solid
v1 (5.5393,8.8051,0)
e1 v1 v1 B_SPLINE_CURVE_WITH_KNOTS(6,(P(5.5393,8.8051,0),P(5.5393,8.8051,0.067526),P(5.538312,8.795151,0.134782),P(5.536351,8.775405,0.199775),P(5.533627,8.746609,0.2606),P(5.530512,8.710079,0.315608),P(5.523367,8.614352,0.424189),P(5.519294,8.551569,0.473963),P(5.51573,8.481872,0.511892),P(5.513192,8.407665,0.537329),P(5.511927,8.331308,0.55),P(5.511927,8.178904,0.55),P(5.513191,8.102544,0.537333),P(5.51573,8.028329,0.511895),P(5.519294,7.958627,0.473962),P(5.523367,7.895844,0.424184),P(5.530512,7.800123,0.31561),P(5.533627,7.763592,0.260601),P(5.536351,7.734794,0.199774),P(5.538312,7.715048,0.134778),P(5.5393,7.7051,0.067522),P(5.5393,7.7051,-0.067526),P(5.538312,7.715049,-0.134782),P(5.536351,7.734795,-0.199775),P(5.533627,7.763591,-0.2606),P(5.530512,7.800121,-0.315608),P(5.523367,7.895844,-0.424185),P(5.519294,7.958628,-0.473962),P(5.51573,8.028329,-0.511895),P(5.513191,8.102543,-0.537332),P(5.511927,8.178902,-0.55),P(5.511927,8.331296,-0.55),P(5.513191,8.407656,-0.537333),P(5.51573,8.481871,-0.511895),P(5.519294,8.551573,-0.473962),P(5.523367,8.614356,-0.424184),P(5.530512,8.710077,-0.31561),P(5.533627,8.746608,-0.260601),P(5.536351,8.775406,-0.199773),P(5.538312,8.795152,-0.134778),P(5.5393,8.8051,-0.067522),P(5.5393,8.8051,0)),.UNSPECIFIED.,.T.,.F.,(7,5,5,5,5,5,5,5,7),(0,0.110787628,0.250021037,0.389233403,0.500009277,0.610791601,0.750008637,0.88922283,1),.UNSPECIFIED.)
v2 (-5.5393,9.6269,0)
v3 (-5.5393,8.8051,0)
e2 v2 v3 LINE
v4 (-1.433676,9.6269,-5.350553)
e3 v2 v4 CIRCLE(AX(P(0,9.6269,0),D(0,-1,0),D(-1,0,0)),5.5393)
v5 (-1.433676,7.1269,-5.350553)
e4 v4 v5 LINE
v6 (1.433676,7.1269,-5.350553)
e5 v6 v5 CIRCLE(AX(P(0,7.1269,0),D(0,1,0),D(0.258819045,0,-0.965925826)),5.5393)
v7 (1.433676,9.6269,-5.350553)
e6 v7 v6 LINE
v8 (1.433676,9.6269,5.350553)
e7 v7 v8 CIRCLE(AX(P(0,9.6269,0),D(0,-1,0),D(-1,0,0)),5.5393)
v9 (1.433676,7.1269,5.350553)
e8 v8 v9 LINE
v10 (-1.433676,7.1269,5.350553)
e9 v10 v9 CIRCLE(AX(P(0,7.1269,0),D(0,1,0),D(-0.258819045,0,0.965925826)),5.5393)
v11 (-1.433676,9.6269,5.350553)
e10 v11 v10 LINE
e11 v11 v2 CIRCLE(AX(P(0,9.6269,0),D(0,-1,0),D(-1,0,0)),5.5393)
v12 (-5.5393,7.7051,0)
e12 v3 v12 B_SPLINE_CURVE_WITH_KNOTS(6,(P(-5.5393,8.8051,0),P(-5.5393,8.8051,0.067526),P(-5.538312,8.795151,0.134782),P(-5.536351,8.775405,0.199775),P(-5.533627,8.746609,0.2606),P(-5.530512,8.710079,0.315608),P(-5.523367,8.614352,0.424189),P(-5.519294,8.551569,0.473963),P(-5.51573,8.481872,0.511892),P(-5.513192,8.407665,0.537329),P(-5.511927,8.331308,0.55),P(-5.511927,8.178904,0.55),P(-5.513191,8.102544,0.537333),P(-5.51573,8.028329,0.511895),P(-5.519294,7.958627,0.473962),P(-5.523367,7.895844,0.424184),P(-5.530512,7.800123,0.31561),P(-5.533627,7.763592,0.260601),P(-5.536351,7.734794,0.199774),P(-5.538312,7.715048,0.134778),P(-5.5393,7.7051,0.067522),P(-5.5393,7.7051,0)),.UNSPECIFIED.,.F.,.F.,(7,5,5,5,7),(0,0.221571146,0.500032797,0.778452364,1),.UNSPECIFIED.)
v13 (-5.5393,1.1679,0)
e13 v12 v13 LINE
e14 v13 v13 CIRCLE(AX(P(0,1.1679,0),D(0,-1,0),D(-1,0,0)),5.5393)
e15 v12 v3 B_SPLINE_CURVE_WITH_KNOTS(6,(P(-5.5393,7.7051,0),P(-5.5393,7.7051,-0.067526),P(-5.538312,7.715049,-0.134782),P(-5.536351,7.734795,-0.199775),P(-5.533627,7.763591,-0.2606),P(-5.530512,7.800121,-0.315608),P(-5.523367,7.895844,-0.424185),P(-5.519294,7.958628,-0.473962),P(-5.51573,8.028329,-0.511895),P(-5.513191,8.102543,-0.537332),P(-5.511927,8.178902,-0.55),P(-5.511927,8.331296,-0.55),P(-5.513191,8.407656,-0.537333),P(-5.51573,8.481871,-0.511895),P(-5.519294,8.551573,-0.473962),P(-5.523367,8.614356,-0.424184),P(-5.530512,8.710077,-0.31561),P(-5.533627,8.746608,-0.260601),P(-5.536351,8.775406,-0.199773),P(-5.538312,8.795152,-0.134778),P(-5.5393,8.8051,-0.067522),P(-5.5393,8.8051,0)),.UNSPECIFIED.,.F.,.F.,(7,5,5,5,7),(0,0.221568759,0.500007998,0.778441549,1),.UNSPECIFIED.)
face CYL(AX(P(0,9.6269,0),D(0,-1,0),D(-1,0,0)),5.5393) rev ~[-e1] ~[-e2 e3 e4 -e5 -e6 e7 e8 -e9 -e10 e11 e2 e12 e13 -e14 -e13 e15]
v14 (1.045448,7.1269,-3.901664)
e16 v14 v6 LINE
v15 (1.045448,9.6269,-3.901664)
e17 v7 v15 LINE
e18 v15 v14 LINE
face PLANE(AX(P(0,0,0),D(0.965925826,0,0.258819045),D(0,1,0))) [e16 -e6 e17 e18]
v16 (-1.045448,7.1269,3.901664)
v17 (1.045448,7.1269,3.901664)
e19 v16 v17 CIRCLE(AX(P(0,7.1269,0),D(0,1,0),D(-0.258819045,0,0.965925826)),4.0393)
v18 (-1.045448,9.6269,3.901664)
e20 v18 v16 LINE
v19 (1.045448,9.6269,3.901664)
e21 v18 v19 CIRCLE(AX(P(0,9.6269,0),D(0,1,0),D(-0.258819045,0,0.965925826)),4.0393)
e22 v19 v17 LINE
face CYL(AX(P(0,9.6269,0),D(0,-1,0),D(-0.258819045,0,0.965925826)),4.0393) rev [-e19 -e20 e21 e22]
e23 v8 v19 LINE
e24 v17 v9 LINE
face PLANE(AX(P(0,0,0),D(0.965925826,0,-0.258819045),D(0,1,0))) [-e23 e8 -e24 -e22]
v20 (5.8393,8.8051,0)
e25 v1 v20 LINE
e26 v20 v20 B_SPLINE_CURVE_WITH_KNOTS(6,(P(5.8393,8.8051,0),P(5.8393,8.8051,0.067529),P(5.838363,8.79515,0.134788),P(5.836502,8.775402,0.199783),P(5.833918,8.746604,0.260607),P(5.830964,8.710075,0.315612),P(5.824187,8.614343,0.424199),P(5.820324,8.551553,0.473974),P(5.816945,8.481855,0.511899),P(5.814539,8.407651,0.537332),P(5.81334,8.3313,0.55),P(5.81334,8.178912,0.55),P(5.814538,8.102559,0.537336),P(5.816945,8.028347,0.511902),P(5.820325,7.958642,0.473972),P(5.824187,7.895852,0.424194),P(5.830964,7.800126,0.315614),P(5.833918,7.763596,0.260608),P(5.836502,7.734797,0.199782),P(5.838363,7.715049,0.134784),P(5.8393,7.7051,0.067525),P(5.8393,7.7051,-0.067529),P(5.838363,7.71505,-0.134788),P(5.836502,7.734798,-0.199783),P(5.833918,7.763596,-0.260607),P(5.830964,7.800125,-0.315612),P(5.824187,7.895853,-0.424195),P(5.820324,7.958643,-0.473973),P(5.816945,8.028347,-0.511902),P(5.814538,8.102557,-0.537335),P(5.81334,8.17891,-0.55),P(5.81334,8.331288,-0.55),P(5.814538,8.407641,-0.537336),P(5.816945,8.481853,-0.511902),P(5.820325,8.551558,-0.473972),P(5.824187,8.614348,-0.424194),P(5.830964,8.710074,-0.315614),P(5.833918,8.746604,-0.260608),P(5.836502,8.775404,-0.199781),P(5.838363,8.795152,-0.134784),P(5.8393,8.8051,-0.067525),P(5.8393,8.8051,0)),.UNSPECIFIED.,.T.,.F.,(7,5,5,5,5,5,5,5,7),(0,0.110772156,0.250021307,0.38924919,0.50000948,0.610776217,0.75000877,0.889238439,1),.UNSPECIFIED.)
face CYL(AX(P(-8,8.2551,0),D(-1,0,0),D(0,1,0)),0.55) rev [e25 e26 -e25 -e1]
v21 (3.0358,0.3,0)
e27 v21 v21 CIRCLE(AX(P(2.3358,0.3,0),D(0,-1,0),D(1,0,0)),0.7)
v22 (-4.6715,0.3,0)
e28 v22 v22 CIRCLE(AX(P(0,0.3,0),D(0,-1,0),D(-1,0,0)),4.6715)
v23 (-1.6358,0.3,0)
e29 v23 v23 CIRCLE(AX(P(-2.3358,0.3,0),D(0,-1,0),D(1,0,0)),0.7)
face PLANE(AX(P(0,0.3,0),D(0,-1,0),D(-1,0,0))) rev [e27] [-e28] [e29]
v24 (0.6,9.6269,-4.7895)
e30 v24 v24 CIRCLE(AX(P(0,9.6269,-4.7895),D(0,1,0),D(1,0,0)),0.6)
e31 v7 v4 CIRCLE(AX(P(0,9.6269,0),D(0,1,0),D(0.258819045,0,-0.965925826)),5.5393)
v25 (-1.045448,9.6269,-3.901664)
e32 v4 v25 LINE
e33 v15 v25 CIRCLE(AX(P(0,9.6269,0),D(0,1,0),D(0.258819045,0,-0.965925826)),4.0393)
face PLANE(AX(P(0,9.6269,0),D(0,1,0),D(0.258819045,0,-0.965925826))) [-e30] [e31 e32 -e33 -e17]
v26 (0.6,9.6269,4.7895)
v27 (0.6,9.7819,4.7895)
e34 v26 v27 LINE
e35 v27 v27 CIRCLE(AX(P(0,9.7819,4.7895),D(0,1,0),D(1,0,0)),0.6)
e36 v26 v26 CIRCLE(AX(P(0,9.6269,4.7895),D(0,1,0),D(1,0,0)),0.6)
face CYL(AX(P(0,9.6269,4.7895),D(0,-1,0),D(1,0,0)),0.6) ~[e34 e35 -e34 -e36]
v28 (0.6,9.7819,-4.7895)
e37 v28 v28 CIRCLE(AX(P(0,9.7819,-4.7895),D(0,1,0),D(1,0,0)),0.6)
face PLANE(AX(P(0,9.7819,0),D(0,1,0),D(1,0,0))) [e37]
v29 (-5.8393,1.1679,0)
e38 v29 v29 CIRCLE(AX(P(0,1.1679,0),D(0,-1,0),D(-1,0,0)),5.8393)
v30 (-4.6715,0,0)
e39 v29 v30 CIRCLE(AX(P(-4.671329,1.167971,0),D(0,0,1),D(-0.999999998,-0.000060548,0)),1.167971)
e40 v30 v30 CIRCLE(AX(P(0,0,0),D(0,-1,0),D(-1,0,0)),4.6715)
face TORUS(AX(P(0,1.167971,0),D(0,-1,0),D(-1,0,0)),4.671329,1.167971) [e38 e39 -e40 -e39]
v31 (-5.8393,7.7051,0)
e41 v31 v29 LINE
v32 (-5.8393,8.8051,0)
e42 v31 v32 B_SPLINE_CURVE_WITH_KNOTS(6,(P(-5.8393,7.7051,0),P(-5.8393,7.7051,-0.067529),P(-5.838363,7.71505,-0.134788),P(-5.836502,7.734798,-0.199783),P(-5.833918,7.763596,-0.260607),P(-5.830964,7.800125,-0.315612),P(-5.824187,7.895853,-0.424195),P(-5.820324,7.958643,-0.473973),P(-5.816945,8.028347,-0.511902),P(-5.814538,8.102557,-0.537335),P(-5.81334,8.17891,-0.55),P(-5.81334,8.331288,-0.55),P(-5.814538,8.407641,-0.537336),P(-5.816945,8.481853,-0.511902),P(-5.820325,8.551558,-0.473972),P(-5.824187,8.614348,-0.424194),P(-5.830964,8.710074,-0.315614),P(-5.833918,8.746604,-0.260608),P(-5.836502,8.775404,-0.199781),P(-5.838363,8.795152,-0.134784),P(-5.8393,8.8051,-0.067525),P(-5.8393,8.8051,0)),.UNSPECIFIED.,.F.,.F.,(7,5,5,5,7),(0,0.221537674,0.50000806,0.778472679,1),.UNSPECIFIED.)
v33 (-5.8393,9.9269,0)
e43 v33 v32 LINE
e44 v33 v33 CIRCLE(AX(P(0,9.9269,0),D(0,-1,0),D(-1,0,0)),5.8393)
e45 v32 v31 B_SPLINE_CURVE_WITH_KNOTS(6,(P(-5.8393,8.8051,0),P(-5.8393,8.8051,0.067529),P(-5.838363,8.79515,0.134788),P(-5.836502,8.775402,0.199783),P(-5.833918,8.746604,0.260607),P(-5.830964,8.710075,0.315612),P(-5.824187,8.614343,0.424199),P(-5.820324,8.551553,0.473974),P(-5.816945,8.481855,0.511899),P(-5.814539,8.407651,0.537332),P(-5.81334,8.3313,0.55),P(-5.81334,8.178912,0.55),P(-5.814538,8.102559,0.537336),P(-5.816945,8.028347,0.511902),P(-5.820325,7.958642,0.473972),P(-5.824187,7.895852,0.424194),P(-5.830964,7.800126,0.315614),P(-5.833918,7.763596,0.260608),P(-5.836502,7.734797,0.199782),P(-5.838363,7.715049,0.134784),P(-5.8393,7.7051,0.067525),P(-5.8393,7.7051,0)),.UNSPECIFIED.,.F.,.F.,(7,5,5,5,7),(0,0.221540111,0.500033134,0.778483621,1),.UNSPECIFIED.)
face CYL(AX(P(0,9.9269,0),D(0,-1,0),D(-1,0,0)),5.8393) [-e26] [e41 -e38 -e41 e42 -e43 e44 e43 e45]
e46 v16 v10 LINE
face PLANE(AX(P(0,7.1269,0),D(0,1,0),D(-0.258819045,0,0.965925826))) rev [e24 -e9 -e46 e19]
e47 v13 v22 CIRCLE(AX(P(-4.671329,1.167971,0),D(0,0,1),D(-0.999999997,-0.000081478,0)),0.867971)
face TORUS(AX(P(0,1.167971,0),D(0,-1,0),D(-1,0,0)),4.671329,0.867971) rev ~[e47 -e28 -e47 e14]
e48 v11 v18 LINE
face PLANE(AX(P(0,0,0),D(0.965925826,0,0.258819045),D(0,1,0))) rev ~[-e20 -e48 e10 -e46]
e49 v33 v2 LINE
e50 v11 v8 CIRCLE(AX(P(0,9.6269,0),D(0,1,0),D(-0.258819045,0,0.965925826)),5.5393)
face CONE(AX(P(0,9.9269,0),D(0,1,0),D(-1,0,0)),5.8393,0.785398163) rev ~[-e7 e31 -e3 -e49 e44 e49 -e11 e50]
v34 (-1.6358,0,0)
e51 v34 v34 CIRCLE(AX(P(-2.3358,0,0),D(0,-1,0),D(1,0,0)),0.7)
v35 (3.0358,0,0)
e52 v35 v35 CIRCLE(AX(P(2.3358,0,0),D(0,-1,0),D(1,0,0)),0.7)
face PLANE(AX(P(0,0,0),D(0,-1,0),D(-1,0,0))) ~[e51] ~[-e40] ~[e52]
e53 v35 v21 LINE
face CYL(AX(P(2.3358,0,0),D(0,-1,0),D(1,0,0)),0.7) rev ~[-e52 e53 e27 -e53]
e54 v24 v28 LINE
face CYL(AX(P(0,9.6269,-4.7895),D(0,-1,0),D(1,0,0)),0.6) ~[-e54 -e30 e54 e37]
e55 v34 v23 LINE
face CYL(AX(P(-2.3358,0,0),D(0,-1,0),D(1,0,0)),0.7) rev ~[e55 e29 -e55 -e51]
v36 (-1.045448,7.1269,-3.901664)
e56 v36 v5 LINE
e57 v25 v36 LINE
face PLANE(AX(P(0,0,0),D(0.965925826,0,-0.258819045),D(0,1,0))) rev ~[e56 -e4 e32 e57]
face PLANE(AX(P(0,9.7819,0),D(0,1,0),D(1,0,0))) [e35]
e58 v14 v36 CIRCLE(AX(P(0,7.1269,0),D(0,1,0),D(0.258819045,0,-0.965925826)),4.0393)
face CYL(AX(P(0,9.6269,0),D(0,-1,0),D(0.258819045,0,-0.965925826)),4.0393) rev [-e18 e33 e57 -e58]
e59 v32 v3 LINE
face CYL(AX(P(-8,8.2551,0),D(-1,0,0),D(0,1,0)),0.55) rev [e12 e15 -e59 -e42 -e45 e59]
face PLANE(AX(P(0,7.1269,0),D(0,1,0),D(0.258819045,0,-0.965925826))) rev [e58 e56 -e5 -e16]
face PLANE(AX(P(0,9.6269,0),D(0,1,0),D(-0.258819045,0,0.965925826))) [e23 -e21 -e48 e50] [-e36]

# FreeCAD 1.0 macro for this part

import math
import FreeCAD as App
import Part
import Sketcher
from FreeCAD import Vector
Q = App.Units.Quantity


def add_polygon(sketch, points):
    """Adds a closed chain of lines whose ends are joined by coincident constraints."""
    first, n = sketch.GeometryCount, len(points)
    for a, b in zip(points, points[1:] + points[:1]):
        sketch.addGeometry(Part.LineSegment(App.Vector(*a, 0), App.Vector(*b, 0)), False)
    for i in range(n):
        sketch.addConstraint(Sketcher.Constraint("Coincident", first + i, 2, first + (i + 1) % n, 1))

doc = App.newDocument("Part")
body = doc.addObject("PartDesign::Body", "Body")

# Sketch on XY plane
sketch1 = body.newObject("Sketcher::SketchObject", "Sketch")
sketch1.AttachmentSupport = (doc.getObject("XY_Plane"), [""])
sketch1.MapMode = "FlatFace"
sketch1.addGeometry([
    Part.LineSegment(Vector(-4.67, 0, 0), Vector(0, 0, 0)),  # 0
    Part.LineSegment(Vector(0, 0, 0), Vector(0, 0.3, 0)),  # 1
    Part.LineSegment(Vector(0, 0.3, 0), Vector(-4.67, 0.3, 0)),  # 2
    Part.ArcOfCircle(Part.Circle(Vector(-4.67, 1.17, 0), Vector(0, 0, 1), 0.87), math.radians(180), math.radians(270)),  # 3
    Part.LineSegment(Vector(-5.54, 1.17, 0), Vector(-5.54, 9.63, 0)),  # 4
    Part.LineSegment(Vector(-5.54, 9.63, 0), Vector(-5.84, 9.93, 0)),  # 5
    Part.LineSegment(Vector(-5.84, 9.93, 0), Vector(-5.84, 1.17, 0)),  # 6
    Part.ArcOfCircle(Part.Circle(Vector(-4.67, 1.17, 0), Vector(0, 0, 1), 1.17), math.radians(180), math.radians(270)),  # 7
], False)
sketch1.addConstraint([
    Sketcher.Constraint("Coincident", 0, 2, 1, 1),
    Sketcher.Constraint("Coincident", 1, 2, 2, 1),
    Sketcher.Constraint("Tangent", 2, 2, 3, 2),
    Sketcher.Constraint("Tangent", 3, 1, 4, 1),
    Sketcher.Constraint("Coincident", 4, 2, 5, 1),
    Sketcher.Constraint("Coincident", 5, 2, 6, 1),
    Sketcher.Constraint("Tangent", 6, 2, 7, 1),
    Sketcher.Constraint("Tangent", 7, 2, 0, 1),
    Sketcher.Constraint("Horizontal", 0),
    Sketcher.Constraint("Vertical", 1),
    Sketcher.Constraint("Horizontal", 2),
    Sketcher.Constraint("Vertical", 4),
    Sketcher.Constraint("Vertical", 6),
    Sketcher.Constraint("Coincident", 0, 2, -1, 1),
    Sketcher.Constraint("Coincident", 7, 3, 3, 3),
    Sketcher.Constraint("Angle", 5, Q("135 deg")),
    Sketcher.Constraint("DistanceY", 1, 1, 1, 2, 0.3),
    Sketcher.Constraint("Radius", 3, 0.8678),
    Sketcher.Constraint("DistanceY", 4, 1, 4, 2, 8.459),
    Sketcher.Constraint("DistanceX", 0, 1, 0, 2, 4.6715),
])
revolution = body.newObject("PartDesign::Revolution", "Revolution")
revolution.Profile = sketch1
revolution.ReferenceAxis = (sketch1, ["V_Axis"])
revolution.Angle = 360

# Sketch on YZ plane
sketch2 = body.newObject("Sketcher::SketchObject", "Sketch001")
sketch2.AttachmentSupport = (doc.getObject("YZ_Plane"), [""])
sketch2.MapMode = "FlatFace"
add_polygon(sketch2, [(9.6, 4), (9.6, 5.5), (7.1, 5.5), (7.1, 4)])  # lines 0-3
add_polygon(sketch2, [(9.6, -5.5), (9.6, -4), (7.1, -4), (7.1, -5.5)])  # lines 4-7
sketch2.addConstraint([
    Sketcher.Constraint("Vertical", 0),
    Sketcher.Constraint("Horizontal", 1),
    Sketcher.Constraint("Vertical", 2),
    Sketcher.Constraint("Horizontal", 3),
    Sketcher.Constraint("Vertical", 4),
    Sketcher.Constraint("Horizontal", 5),
    Sketcher.Constraint("Vertical", 6),
    Sketcher.Constraint("Horizontal", 7),
    Sketcher.Constraint("Symmetric", 3, 2, 4, 2, -1),
    Sketcher.Constraint("Symmetric", 1, 2, 6, 2, -1),
    Sketcher.Constraint("DistanceX", 1, 2, 1, 1, 2.5),
    Sketcher.Constraint("DistanceY", 0, 1, 0, 2, 1.5),
    Sketcher.Constraint("DistanceX", -1, 1, 0, 2, 9.627),
    Sketcher.Constraint("DistanceY", -1, 1, 0, 2, 5.5393),
])
revolution2 = body.newObject("PartDesign::Revolution", "Revolution001")
revolution2.Profile = sketch2
revolution2.ReferenceAxis = (sketch2, ["H_Axis"])
revolution2.Angle = 30
revolution2.Midplane = True

# Sketch on XZ plane
sketch3 = body.newObject("Sketcher::SketchObject", "Sketch002")
sketch3.AttachmentSupport = (doc.getObject("XZ_Plane"), [""])
sketch3.MapMode = "FlatFace"
sketch3.AttachmentOffset = App.Placement(Vector(0, 0, -9.6269), App.Rotation())
sketch3.addGeometry([
    Part.Circle(Vector(0, -4.8, 0), Vector(0, 0, 1), 0.6),
    Part.Circle(Vector(0, 4.8, 0), Vector(0, 0, 1), 0.6),
], False)
sketch3.addConstraint([
    Sketcher.Constraint("Equal", 0, 1),
    Sketcher.Constraint("Symmetric", 0, 3, 1, 3, -1, 1),
    Sketcher.Constraint("PointOnObject", 0, 3, -2),
    Sketcher.Constraint("Diameter", 0, 1.2),
    Sketcher.Constraint("DistanceY", 0, 3, 1, 3, 9.579),
])
pad1 = body.newObject("PartDesign::Pad", "Pad")
pad1.Profile = sketch3
pad1.Length = 0.155
pad1.Reversed = True

# Sketch on YZ plane
sketch4 = body.newObject("Sketcher::SketchObject", "Sketch003")
sketch4.AttachmentSupport = (doc.getObject("YZ_Plane"), [""])
sketch4.MapMode = "FlatFace"
sketch4.AttachmentOffset = App.Placement(Vector(0, 0, -8), App.Rotation())
sketch4.addGeometry(Part.Circle(Vector(8.3, 0, 0), Vector(0, 0, 1), 0.6), False)
sketch4.addConstraint([
    Sketcher.Constraint("PointOnObject", 0, 3, -1),
    Sketcher.Constraint("Diameter", 0, 1.1),
    Sketcher.Constraint("DistanceX", -1, 1, 0, 3, 8.255),
])
pocket1 = body.newObject("PartDesign::Pocket", "Pocket")
pocket1.Profile = sketch4
pocket1.Length = 16
pocket1.Reversed = True

# Sketch on XZ plane
sketch5 = body.newObject("Sketcher::SketchObject", "Sketch004")
sketch5.AttachmentSupport = (doc.getObject("XZ_Plane"), [""])
sketch5.MapMode = "FlatFace"
sketch5.addGeometry([
    Part.Circle(Vector(-2.3, 0, 0), Vector(0, 0, 1), 0.7),
    Part.Circle(Vector(2.3, 0, 0), Vector(0, 0, 1), 0.7),
], False)
sketch5.addConstraint([
    Sketcher.Constraint("Equal", 0, 1),
    Sketcher.Constraint("Symmetric", 0, 3, 1, 3, -1, 1),
    Sketcher.Constraint("PointOnObject", 0, 3, -1),
    Sketcher.Constraint("Diameter", 0, 1.4),
    Sketcher.Constraint("DistanceX", 0, 3, -1, 1, 2.3358),
])
pocket2 = body.newObject("PartDesign::Pocket", "Pocket001")
pocket2.Profile = sketch5
pocket2.Length = 3

doc.recompute()
